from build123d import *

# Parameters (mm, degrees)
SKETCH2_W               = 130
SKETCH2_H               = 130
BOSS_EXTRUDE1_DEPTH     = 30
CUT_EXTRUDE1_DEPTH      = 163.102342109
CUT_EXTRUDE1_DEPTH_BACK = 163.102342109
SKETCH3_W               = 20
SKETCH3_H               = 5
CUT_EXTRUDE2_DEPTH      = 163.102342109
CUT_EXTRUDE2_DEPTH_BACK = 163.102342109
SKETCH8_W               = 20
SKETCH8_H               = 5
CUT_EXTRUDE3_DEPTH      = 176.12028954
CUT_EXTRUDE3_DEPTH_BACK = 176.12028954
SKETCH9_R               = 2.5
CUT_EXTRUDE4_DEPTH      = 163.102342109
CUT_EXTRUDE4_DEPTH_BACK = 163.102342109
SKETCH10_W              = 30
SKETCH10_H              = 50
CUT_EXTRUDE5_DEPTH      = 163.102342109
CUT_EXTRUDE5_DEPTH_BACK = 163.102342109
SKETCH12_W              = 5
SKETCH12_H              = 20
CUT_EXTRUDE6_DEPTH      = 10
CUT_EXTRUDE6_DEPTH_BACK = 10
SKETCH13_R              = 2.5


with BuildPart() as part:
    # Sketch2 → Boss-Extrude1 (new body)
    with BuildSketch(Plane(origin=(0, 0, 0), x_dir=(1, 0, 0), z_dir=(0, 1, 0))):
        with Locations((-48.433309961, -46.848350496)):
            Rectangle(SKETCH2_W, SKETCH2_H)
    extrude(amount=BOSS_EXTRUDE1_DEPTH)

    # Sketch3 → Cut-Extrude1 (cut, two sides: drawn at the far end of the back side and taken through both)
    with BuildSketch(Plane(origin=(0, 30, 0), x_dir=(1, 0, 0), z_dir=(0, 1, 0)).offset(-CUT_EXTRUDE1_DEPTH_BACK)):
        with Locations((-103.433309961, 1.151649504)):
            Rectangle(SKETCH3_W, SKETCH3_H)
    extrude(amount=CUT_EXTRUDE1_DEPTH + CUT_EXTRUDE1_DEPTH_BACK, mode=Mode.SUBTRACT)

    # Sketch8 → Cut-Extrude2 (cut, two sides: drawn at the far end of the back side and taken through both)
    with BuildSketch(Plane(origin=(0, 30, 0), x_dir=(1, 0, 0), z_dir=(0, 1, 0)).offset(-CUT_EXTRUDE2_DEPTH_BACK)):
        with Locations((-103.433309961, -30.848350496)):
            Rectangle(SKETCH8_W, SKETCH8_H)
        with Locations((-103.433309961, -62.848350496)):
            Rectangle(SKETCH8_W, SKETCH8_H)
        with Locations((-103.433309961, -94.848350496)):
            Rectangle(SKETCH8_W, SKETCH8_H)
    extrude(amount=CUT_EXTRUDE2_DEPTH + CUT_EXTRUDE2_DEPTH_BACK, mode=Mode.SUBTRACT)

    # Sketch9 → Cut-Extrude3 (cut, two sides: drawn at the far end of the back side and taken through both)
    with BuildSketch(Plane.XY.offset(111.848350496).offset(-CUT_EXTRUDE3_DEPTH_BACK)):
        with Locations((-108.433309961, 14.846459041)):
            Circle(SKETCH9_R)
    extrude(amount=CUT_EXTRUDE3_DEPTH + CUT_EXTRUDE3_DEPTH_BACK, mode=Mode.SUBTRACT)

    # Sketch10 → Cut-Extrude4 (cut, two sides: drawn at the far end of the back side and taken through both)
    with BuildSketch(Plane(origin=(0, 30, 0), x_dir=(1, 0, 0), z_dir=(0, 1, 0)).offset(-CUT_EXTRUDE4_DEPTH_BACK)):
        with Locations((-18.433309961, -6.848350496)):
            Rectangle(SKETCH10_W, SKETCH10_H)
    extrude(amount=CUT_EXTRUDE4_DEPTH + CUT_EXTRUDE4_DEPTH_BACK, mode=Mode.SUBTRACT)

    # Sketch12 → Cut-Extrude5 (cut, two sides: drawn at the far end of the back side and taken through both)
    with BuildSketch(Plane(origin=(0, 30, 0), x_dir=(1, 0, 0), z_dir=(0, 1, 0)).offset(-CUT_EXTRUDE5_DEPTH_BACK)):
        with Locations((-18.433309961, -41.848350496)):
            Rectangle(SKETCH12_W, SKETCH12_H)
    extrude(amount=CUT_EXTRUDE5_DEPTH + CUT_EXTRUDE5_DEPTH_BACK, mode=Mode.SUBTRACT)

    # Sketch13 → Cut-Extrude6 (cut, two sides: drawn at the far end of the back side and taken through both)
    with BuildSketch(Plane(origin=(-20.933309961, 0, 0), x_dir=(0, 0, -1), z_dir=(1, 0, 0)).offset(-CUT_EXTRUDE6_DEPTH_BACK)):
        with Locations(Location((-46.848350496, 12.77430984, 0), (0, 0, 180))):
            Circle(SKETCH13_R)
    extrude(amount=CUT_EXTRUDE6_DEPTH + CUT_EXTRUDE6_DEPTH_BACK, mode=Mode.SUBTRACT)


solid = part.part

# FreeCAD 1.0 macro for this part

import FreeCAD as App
import Part
import Sketcher

V = App.Vector
Q = App.Units.Quantity

doc = App.newDocument("Part")
body = doc.addObject("PartDesign::Body", "Body")

sketch1 = body.newObject("Sketcher::SketchObject", "Sketch")
sketch1.AttachmentSupport = (doc.getObject("XZ_Plane"), [""])
sketch1.MapMode = "FlatFace"
sketch1.addGeometry([
    Part.LineSegment(V(-113, -18, 0), V(-113, 112, 0)),
    Part.LineSegment(V(-113, 112, 0), V(17, 112, 0)),
    Part.LineSegment(V(17, 112, 0), V(17, -18, 0)),
    Part.LineSegment(V(17, -18, 0), V(-113, -18, 0)),
], False)
sketch1.addConstraint([
    Sketcher.Constraint("Coincident", 0, 2, 1, 1),
    Sketcher.Constraint("Coincident", 1, 2, 2, 1),
    Sketcher.Constraint("Coincident", 2, 2, 3, 1),
    Sketcher.Constraint("Coincident", 3, 2, 0, 1),
    Sketcher.Constraint("Vertical", 0),
    Sketcher.Constraint("Horizontal", 1),
    Sketcher.Constraint("Vertical", 2),
    Sketcher.Constraint("Horizontal", 3),
    Sketcher.Constraint("Equal", 3, 0),
    Sketcher.Constraint("DistanceX", 1, 1, 1, 2, Q("130 mm")),
    Sketcher.Constraint("DistanceX", 0, 2, -1, 1, Q("113.43331 mm")),
    Sketcher.Constraint("DistanceY", -1, 1, 0, 2, Q("111.84835 mm")),
])
pad1 = body.newObject("PartDesign::Pad", "Pad")
pad1.Profile = sketch1
pad1.Length = 30
pad1.Reversed = True

sketch2 = body.newObject("Sketcher::SketchObject", "Sketch001")
sketch2.AttachmentSupport = (doc.getObject("XZ_Plane"), [""])
sketch2.MapMode = "FlatFace"
sketch2.AttachmentOffset = App.Placement(V(0, 0, -30), App.Rotation())
sketch2.addGeometry([
    Part.LineSegment(V(-113, -4, 0), V(-113, 1, 0)),
    Part.LineSegment(V(-113, 1, 0), V(-93, 1, 0)),
    Part.LineSegment(V(-93, 1, 0), V(-93, -4, 0)),
    Part.LineSegment(V(-93, -4, 0), V(-113, -4, 0)),
], False)
sketch2.addConstraint([
    Sketcher.Constraint("Coincident", 0, 2, 1, 1),
    Sketcher.Constraint("Coincident", 1, 2, 2, 1),
    Sketcher.Constraint("Coincident", 2, 2, 3, 1),
    Sketcher.Constraint("Coincident", 3, 2, 0, 1),
    Sketcher.Constraint("Vertical", 0),
    Sketcher.Constraint("Horizontal", 1),
    Sketcher.Constraint("Vertical", 2),
    Sketcher.Constraint("Horizontal", 3),
    Sketcher.Constraint("DistanceX", 1, 1, 1, 2, Q("20 mm")),
    Sketcher.Constraint("DistanceY", 0, 1, 0, 2, Q("5 mm")),
    Sketcher.Constraint("DistanceX", 0, 2, -1, 1, Q("113.43331 mm")),
    Sketcher.Constraint("DistanceY", -1, 1, 0, 2, Q("1.34835 mm")),
])
pocket1 = body.newObject("PartDesign::Pocket", "Pocket")
pocket1.Profile = sketch2
pocket1.Type = "ThroughAll"
pocket1.Midplane = True

sketch3 = body.newObject("Sketcher::SketchObject", "Sketch002")
sketch3.AttachmentSupport = (doc.getObject("XZ_Plane"), [""])
sketch3.MapMode = "FlatFace"
sketch3.AttachmentOffset = App.Placement(V(0, 0, -30), App.Rotation())
sketch3.addGeometry([
    Part.LineSegment(V(-113.4, 28.3, 0), V(-113.4, 33.3, 0)),
    Part.LineSegment(V(-113.4, 33.3, 0), V(-93.4, 33.3, 0)),
    Part.LineSegment(V(-93.4, 33.3, 0), V(-93.4, 28.3, 0)),
    Part.LineSegment(V(-93.4, 28.3, 0), V(-113.4, 28.3, 0)),
    Part.LineSegment(V(-113.4, 60.3, 0), V(-113.4, 65.3, 0)),
    Part.LineSegment(V(-113.4, 65.3, 0), V(-93.4, 65.3, 0)),
    Part.LineSegment(V(-93.4, 65.3, 0), V(-93.4, 60.3, 0)),
    Part.LineSegment(V(-93.4, 60.3, 0), V(-113.4, 60.3, 0)),
    Part.LineSegment(V(-113.4, 92.3, 0), V(-113.4, 97.3, 0)),
    Part.LineSegment(V(-113.4, 97.3, 0), V(-93.4, 97.3, 0)),
    Part.LineSegment(V(-93.4, 97.3, 0), V(-93.4, 92.3, 0)),
    Part.LineSegment(V(-93.4, 92.3, 0), V(-113.4, 92.3, 0)),
], False)
sketch3.addConstraint([
    Sketcher.Constraint("Coincident", 0, 2, 1, 1),
    Sketcher.Constraint("Coincident", 1, 2, 2, 1),
    Sketcher.Constraint("Coincident", 2, 2, 3, 1),
    Sketcher.Constraint("Coincident", 3, 2, 0, 1),
    Sketcher.Constraint("Coincident", 4, 2, 5, 1),
    Sketcher.Constraint("Coincident", 5, 2, 6, 1),
    Sketcher.Constraint("Coincident", 6, 2, 7, 1),
    Sketcher.Constraint("Coincident", 7, 2, 4, 1),
    Sketcher.Constraint("Coincident", 8, 2, 9, 1),
    Sketcher.Constraint("Coincident", 9, 2, 10, 1),
    Sketcher.Constraint("Coincident", 10, 2, 11, 1),
    Sketcher.Constraint("Coincident", 11, 2, 8, 1),
    Sketcher.Constraint("Vertical", 0),
    Sketcher.Constraint("Horizontal", 1),
    Sketcher.Constraint("Vertical", 2),
    Sketcher.Constraint("Horizontal", 3),
    Sketcher.Constraint("Vertical", 4),
    Sketcher.Constraint("Horizontal", 5),
    Sketcher.Constraint("Vertical", 6),
    Sketcher.Constraint("Horizontal", 7),
    Sketcher.Constraint("Vertical", 8),
    Sketcher.Constraint("Horizontal", 9),
    Sketcher.Constraint("Vertical", 10),
    Sketcher.Constraint("Horizontal", 11),
    Sketcher.Constraint("Vertical", 3, 2, 4, 2),
    Sketcher.Constraint("Vertical", 2, 2, 5, 2),
    Sketcher.Constraint("Vertical", 7, 2, 8, 2),
    Sketcher.Constraint("Vertical", 6, 2, 9, 2),
    Sketcher.Constraint("Equal", 2, 4),
    Sketcher.Constraint("Equal", 6, 8),
    Sketcher.Constraint("DistanceX", 1, 1, 1, 2, Q("20 mm")),
    Sketcher.Constraint("DistanceY", 0, 1, 0, 2, Q("5 mm")),
    Sketcher.Constraint("DistanceY", 0, 2, 4, 2, Q("32 mm")),
    Sketcher.Constraint("DistanceY", 4, 2, 8, 2, Q("32 mm")),
    Sketcher.Constraint("DistanceX", 0, 2, -1, 1, Q("113.43331 mm")),
    Sketcher.Constraint("DistanceY", -1, 1, 0, 2, Q("33.34835 mm")),
])
pocket2 = body.newObject("PartDesign::Pocket", "Pocket001")
pocket2.Profile = sketch3
pocket2.Type = "ThroughAll"
pocket2.Midplane = True

sketch4 = body.newObject("Sketcher::SketchObject", "Sketch003")
sketch4.AttachmentSupport = (doc.getObject("XY_Plane"), [""])
sketch4.MapMode = "FlatFace"
sketch4.AttachmentOffset = App.Placement(V(0, 0, 111.84835), App.Rotation())
sketch4.addGeometry(Part.Circle(V(-108.4, 14.8, 0), V(0, 0, 1), 2.5), False)
sketch4.addConstraint([
    Sketcher.Constraint("Diameter", 0, Q("5 mm")),
    Sketcher.Constraint("DistanceX", 0, 3, -1, 1, Q("108.43331 mm")),
    Sketcher.Constraint("DistanceY", -1, 1, 0, 3, Q("14.846459 mm")),
])
pocket3 = body.newObject("PartDesign::Pocket", "Pocket002")
pocket3.Profile = sketch4
pocket3.Type = "ThroughAll"
pocket3.Midplane = True

sketch5 = body.newObject("Sketcher::SketchObject", "Sketch004")
sketch5.AttachmentSupport = (doc.getObject("XZ_Plane"), [""])
sketch5.MapMode = "FlatFace"
sketch5.AttachmentOffset = App.Placement(V(0, 0, -30), App.Rotation())
sketch5.addGeometry([
    Part.LineSegment(V(-33, -18, 0), V(-33, 32, 0)),
    Part.LineSegment(V(-33, 32, 0), V(-3, 32, 0)),
    Part.LineSegment(V(-3, 32, 0), V(-3, -18, 0)),
    Part.LineSegment(V(-3, -18, 0), V(-33, -18, 0)),
], False)
sketch5.addConstraint([
    Sketcher.Constraint("Coincident", 0, 2, 1, 1),
    Sketcher.Constraint("Coincident", 1, 2, 2, 1),
    Sketcher.Constraint("Coincident", 2, 2, 3, 1),
    Sketcher.Constraint("Coincident", 3, 2, 0, 1),
    Sketcher.Constraint("Vertical", 0),
    Sketcher.Constraint("Horizontal", 1),
    Sketcher.Constraint("Vertical", 2),
    Sketcher.Constraint("Horizontal", 3),
    Sketcher.Constraint("DistanceX", 1, 1, 1, 2, Q("30 mm")),
    Sketcher.Constraint("DistanceY", 0, 1, 0, 2, Q("50 mm")),
    Sketcher.Constraint("DistanceX", 0, 2, -1, 1, Q("33.43331 mm")),
    Sketcher.Constraint("DistanceY", -1, 1, 0, 2, Q("31.84835 mm")),
])
pocket4 = body.newObject("PartDesign::Pocket", "Pocket003")
pocket4.Profile = sketch5
pocket4.Type = "ThroughAll"
pocket4.Midplane = True

sketch6 = body.newObject("Sketcher::SketchObject", "Sketch005")
sketch6.AttachmentSupport = (doc.getObject("XZ_Plane"), [""])
sketch6.MapMode = "FlatFace"
sketch6.AttachmentOffset = App.Placement(V(0, 0, -30), App.Rotation())
sketch6.addGeometry([
    Part.LineSegment(V(-20.9, 31.8, 0), V(-20.9, 51.8, 0)),
    Part.LineSegment(V(-20.9, 51.8, 0), V(-15.9, 51.8, 0)),
    Part.LineSegment(V(-15.9, 51.8, 0), V(-15.9, 31.8, 0)),
    Part.LineSegment(V(-15.9, 31.8, 0), V(-20.9, 31.8, 0)),
], False)
sketch6.addConstraint([
    Sketcher.Constraint("Coincident", 0, 2, 1, 1),
    Sketcher.Constraint("Coincident", 1, 2, 2, 1),
    Sketcher.Constraint("Coincident", 2, 2, 3, 1),
    Sketcher.Constraint("Coincident", 3, 2, 0, 1),
    Sketcher.Constraint("Vertical", 0),
    Sketcher.Constraint("Horizontal", 1),
    Sketcher.Constraint("Vertical", 2),
    Sketcher.Constraint("Horizontal", 3),
    Sketcher.Constraint("DistanceX", 1, 1, 1, 2, Q("5 mm")),
    Sketcher.Constraint("DistanceY", 0, 1, 0, 2, Q("20 mm")),
    Sketcher.Constraint("DistanceX", 0, 2, -1, 1, Q("20.93331 mm")),
    Sketcher.Constraint("DistanceY", -1, 1, 0, 2, Q("51.84835 mm")),
])
pocket5 = body.newObject("PartDesign::Pocket", "Pocket004")
pocket5.Profile = sketch6
pocket5.Type = "ThroughAll"
pocket5.Midplane = True

sketch7 = body.newObject("Sketcher::SketchObject", "Sketch006")
sketch7.AttachmentSupport = (doc.getObject("YZ_Plane"), [""])
sketch7.MapMode = "FlatFace"
sketch7.AttachmentOffset = App.Placement(V(0, 0, -20.93331), App.Rotation())
sketch7.addGeometry(Part.Circle(V(12.8, 46.8, 0), V(0, 0, 1), 2.5), False)
sketch7.addConstraint([
    Sketcher.Constraint("Diameter", 0, Q("5 mm")),
    Sketcher.Constraint("DistanceX", -1, 1, 0, 3, Q("12.77431 mm")),
    Sketcher.Constraint("DistanceY", -1, 1, 0, 3, Q("46.84835 mm")),
])
pocket6 = body.newObject("PartDesign::Pocket", "Pocket005")
pocket6.Profile = sketch7
pocket6.Type = "TwoLengths"
pocket6.Length = 10
pocket6.Length2 = 10
pocket6.Reversed = True

doc.recompute()
